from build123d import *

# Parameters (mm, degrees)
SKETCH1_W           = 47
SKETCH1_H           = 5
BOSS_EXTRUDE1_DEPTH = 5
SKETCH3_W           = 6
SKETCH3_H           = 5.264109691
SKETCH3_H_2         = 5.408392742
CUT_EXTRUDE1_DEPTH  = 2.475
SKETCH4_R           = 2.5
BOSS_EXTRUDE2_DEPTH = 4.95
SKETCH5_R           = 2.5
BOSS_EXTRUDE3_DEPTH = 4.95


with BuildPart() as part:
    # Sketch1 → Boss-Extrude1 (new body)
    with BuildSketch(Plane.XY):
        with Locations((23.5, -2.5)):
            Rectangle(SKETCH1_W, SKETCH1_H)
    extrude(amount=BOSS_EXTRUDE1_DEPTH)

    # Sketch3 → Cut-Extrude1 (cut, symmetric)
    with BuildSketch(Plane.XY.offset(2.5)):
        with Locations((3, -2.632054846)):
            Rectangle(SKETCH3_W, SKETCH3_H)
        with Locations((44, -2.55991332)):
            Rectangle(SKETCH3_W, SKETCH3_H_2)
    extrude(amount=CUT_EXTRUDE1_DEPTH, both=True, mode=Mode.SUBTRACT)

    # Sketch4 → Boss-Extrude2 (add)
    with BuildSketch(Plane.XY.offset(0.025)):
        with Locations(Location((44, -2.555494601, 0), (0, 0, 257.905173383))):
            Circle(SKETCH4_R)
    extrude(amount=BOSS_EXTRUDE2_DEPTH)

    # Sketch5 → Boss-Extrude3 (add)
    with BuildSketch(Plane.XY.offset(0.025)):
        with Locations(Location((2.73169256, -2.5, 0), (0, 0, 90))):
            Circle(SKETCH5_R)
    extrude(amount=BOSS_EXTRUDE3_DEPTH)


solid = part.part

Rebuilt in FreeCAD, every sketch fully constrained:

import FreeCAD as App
import Part
import Sketcher
from FreeCAD import Vector
Q = App.Units.Quantity

doc = App.newDocument("Part")
body = doc.addObject("PartDesign::Body", "Body")

sketch1 = doc.addObject("Sketcher::SketchObject", "Sketch")
body.addObject(sketch1)
sketch1.AttachmentSupport = (doc.XY_Plane, [""])
sketch1.MapMode = "FlatFace"
sketch1.addGeometry(Part.LineSegment(Vector(0, 0, 0), Vector(0, -5, 0)), False)
sketch1.addGeometry(Part.LineSegment(Vector(0, -5, 0), Vector(47, -5, 0)), False)
sketch1.addGeometry(Part.LineSegment(Vector(47, -5, 0), Vector(47, 0, 0)), False)
sketch1.addGeometry(Part.LineSegment(Vector(47, 0, 0), Vector(0, 0, 0)), False)
sketch1.addConstraint(Sketcher.Constraint("Coincident", 0, 2, 1, 1))
sketch1.addConstraint(Sketcher.Constraint("Coincident", 1, 2, 2, 1))
sketch1.addConstraint(Sketcher.Constraint("Coincident", 2, 2, 3, 1))
sketch1.addConstraint(Sketcher.Constraint("Coincident", 3, 2, 0, 1))
sketch1.addConstraint(Sketcher.Constraint("Vertical", 0))
sketch1.addConstraint(Sketcher.Constraint("Horizontal", 1))
sketch1.addConstraint(Sketcher.Constraint("Vertical", 2))
sketch1.addConstraint(Sketcher.Constraint("Horizontal", 3))
sketch1.addConstraint(Sketcher.Constraint("Coincident", 3, 2, -1, 1))
sketch1.addConstraint(Sketcher.Constraint("DistanceX", 1, 1, 1, 2, Q("47 mm")))
sketch1.addConstraint(Sketcher.Constraint("DistanceY", 0, 2, 0, 1, Q("5 mm")))
pad1 = doc.addObject("PartDesign::Pad", "Pad")
body.addObject(pad1)
pad1.Profile = sketch1
pad1.Length = 5

sketch2 = doc.addObject("Sketcher::SketchObject", "Sketch001")
body.addObject(sketch2)
sketch2.AttachmentSupport = (doc.XY_Plane, [""])
sketch2.MapMode = "FlatFace"
sketch2.AttachmentOffset = App.Placement(Vector(0, 0, 2.5), App.Rotation())
sketch2.addGeometry(Part.LineSegment(Vector(0, 0, 0), Vector(0, -5, 0)), False)
sketch2.addGeometry(Part.LineSegment(Vector(0, -5, 0), Vector(6, -5, 0)), False)
sketch2.addGeometry(Part.LineSegment(Vector(6, -5, 0), Vector(6, 0, 0)), False)
sketch2.addGeometry(Part.LineSegment(Vector(6, 0, 0), Vector(0, 0, 0)), False)
sketch2.addGeometry(Part.LineSegment(Vector(41, 0, 0), Vector(41, -5, 0)), False)
sketch2.addGeometry(Part.LineSegment(Vector(41, -5, 0), Vector(47, -5, 0)), False)
sketch2.addGeometry(Part.LineSegment(Vector(47, -5, 0), Vector(47, 0, 0)), False)
sketch2.addGeometry(Part.LineSegment(Vector(47, 0, 0), Vector(41, 0, 0)), False)
sketch2.addConstraint(Sketcher.Constraint("Coincident", 0, 2, 1, 1))
sketch2.addConstraint(Sketcher.Constraint("Coincident", 1, 2, 2, 1))
sketch2.addConstraint(Sketcher.Constraint("Coincident", 2, 2, 3, 1))
sketch2.addConstraint(Sketcher.Constraint("Coincident", 3, 2, 0, 1))
sketch2.addConstraint(Sketcher.Constraint("Coincident", 4, 2, 5, 1))
sketch2.addConstraint(Sketcher.Constraint("Coincident", 5, 2, 6, 1))
sketch2.addConstraint(Sketcher.Constraint("Coincident", 6, 2, 7, 1))
sketch2.addConstraint(Sketcher.Constraint("Coincident", 7, 2, 4, 1))
sketch2.addConstraint(Sketcher.Constraint("Vertical", 0))
sketch2.addConstraint(Sketcher.Constraint("Horizontal", 1))
sketch2.addConstraint(Sketcher.Constraint("Vertical", 2))
sketch2.addConstraint(Sketcher.Constraint("Horizontal", 3))
sketch2.addConstraint(Sketcher.Constraint("Vertical", 4))
sketch2.addConstraint(Sketcher.Constraint("Horizontal", 5))
sketch2.addConstraint(Sketcher.Constraint("Vertical", 6))
sketch2.addConstraint(Sketcher.Constraint("Horizontal", 7))
sketch2.addConstraint(Sketcher.Constraint("Coincident", 3, 2, -1, 1))
sketch2.addConstraint(Sketcher.Constraint("Horizontal", 1, 2, 4, 2))
sketch2.addConstraint(Sketcher.Constraint("Equal", 3, 5))
sketch2.addConstraint(Sketcher.Constraint("DistanceX", 1, 1, 1, 2, Q("6 mm")))
sketch2.addConstraint(Sketcher.Constraint("DistanceX", -1, 1, 4, 2, Q("41 mm")))
sketch2.addConstraint(Sketcher.Constraint("DistanceY", 0, 2, 0, 1, Q("5.26411 mm")))
sketch2.addConstraint(Sketcher.Constraint("DistanceY", 4, 2, 4, 1, Q("5.408393 mm")))
pocket1 = doc.addObject("PartDesign::Pocket", "Pocket")
body.addObject(pocket1)
pocket1.Profile = sketch2
pocket1.Length = 4.95
pocket1.Midplane = True

sketch3 = doc.addObject("Sketcher::SketchObject", "Sketch002")
body.addObject(sketch3)
sketch3.AttachmentSupport = (doc.XY_Plane, [""])
sketch3.MapMode = "FlatFace"
sketch3.AttachmentOffset = App.Placement(Vector(0, 0, 0.025), App.Rotation())
sketch3.addGeometry(Part.Circle(Vector(44, -2.6, 0), Vector(0, 0, 1), 2.5), False)
sketch3.addConstraint(Sketcher.Constraint("Diameter", 0, Q("5 mm")))
sketch3.addConstraint(Sketcher.Constraint("DistanceX", -1, 1, 0, 3, Q("44 mm")))
sketch3.addConstraint(Sketcher.Constraint("DistanceY", 0, 3, -1, 1, Q("2.555495 mm")))
pad2 = doc.addObject("PartDesign::Pad", "Pad001")
body.addObject(pad2)
pad2.Profile = sketch3
pad2.Length = 4.95

sketch4 = doc.addObject("Sketcher::SketchObject", "Sketch003")
body.addObject(sketch4)
sketch4.AttachmentSupport = (doc.XY_Plane, [""])
sketch4.MapMode = "FlatFace"
sketch4.AttachmentOffset = App.Placement(Vector(0, 0, 0.025), App.Rotation())
sketch4.addGeometry(Part.Circle(Vector(2.7, -2.5, 0), Vector(0, 0, 1), 2.5), False)
sketch4.addConstraint(Sketcher.Constraint("Diameter", 0, Q("5 mm")))
sketch4.addConstraint(Sketcher.Constraint("DistanceY", 0, 3, -1, 1, Q("2.5 mm")))
sketch4.addConstraint(Sketcher.Constraint("DistanceX", -1, 1, 0, 3, Q("2.731693 mm")))
pad3 = doc.addObject("PartDesign::Pad", "Pad002")
body.addObject(pad3)
pad3.Profile = sketch4
pad3.Length = 4.95

doc.recompute()
